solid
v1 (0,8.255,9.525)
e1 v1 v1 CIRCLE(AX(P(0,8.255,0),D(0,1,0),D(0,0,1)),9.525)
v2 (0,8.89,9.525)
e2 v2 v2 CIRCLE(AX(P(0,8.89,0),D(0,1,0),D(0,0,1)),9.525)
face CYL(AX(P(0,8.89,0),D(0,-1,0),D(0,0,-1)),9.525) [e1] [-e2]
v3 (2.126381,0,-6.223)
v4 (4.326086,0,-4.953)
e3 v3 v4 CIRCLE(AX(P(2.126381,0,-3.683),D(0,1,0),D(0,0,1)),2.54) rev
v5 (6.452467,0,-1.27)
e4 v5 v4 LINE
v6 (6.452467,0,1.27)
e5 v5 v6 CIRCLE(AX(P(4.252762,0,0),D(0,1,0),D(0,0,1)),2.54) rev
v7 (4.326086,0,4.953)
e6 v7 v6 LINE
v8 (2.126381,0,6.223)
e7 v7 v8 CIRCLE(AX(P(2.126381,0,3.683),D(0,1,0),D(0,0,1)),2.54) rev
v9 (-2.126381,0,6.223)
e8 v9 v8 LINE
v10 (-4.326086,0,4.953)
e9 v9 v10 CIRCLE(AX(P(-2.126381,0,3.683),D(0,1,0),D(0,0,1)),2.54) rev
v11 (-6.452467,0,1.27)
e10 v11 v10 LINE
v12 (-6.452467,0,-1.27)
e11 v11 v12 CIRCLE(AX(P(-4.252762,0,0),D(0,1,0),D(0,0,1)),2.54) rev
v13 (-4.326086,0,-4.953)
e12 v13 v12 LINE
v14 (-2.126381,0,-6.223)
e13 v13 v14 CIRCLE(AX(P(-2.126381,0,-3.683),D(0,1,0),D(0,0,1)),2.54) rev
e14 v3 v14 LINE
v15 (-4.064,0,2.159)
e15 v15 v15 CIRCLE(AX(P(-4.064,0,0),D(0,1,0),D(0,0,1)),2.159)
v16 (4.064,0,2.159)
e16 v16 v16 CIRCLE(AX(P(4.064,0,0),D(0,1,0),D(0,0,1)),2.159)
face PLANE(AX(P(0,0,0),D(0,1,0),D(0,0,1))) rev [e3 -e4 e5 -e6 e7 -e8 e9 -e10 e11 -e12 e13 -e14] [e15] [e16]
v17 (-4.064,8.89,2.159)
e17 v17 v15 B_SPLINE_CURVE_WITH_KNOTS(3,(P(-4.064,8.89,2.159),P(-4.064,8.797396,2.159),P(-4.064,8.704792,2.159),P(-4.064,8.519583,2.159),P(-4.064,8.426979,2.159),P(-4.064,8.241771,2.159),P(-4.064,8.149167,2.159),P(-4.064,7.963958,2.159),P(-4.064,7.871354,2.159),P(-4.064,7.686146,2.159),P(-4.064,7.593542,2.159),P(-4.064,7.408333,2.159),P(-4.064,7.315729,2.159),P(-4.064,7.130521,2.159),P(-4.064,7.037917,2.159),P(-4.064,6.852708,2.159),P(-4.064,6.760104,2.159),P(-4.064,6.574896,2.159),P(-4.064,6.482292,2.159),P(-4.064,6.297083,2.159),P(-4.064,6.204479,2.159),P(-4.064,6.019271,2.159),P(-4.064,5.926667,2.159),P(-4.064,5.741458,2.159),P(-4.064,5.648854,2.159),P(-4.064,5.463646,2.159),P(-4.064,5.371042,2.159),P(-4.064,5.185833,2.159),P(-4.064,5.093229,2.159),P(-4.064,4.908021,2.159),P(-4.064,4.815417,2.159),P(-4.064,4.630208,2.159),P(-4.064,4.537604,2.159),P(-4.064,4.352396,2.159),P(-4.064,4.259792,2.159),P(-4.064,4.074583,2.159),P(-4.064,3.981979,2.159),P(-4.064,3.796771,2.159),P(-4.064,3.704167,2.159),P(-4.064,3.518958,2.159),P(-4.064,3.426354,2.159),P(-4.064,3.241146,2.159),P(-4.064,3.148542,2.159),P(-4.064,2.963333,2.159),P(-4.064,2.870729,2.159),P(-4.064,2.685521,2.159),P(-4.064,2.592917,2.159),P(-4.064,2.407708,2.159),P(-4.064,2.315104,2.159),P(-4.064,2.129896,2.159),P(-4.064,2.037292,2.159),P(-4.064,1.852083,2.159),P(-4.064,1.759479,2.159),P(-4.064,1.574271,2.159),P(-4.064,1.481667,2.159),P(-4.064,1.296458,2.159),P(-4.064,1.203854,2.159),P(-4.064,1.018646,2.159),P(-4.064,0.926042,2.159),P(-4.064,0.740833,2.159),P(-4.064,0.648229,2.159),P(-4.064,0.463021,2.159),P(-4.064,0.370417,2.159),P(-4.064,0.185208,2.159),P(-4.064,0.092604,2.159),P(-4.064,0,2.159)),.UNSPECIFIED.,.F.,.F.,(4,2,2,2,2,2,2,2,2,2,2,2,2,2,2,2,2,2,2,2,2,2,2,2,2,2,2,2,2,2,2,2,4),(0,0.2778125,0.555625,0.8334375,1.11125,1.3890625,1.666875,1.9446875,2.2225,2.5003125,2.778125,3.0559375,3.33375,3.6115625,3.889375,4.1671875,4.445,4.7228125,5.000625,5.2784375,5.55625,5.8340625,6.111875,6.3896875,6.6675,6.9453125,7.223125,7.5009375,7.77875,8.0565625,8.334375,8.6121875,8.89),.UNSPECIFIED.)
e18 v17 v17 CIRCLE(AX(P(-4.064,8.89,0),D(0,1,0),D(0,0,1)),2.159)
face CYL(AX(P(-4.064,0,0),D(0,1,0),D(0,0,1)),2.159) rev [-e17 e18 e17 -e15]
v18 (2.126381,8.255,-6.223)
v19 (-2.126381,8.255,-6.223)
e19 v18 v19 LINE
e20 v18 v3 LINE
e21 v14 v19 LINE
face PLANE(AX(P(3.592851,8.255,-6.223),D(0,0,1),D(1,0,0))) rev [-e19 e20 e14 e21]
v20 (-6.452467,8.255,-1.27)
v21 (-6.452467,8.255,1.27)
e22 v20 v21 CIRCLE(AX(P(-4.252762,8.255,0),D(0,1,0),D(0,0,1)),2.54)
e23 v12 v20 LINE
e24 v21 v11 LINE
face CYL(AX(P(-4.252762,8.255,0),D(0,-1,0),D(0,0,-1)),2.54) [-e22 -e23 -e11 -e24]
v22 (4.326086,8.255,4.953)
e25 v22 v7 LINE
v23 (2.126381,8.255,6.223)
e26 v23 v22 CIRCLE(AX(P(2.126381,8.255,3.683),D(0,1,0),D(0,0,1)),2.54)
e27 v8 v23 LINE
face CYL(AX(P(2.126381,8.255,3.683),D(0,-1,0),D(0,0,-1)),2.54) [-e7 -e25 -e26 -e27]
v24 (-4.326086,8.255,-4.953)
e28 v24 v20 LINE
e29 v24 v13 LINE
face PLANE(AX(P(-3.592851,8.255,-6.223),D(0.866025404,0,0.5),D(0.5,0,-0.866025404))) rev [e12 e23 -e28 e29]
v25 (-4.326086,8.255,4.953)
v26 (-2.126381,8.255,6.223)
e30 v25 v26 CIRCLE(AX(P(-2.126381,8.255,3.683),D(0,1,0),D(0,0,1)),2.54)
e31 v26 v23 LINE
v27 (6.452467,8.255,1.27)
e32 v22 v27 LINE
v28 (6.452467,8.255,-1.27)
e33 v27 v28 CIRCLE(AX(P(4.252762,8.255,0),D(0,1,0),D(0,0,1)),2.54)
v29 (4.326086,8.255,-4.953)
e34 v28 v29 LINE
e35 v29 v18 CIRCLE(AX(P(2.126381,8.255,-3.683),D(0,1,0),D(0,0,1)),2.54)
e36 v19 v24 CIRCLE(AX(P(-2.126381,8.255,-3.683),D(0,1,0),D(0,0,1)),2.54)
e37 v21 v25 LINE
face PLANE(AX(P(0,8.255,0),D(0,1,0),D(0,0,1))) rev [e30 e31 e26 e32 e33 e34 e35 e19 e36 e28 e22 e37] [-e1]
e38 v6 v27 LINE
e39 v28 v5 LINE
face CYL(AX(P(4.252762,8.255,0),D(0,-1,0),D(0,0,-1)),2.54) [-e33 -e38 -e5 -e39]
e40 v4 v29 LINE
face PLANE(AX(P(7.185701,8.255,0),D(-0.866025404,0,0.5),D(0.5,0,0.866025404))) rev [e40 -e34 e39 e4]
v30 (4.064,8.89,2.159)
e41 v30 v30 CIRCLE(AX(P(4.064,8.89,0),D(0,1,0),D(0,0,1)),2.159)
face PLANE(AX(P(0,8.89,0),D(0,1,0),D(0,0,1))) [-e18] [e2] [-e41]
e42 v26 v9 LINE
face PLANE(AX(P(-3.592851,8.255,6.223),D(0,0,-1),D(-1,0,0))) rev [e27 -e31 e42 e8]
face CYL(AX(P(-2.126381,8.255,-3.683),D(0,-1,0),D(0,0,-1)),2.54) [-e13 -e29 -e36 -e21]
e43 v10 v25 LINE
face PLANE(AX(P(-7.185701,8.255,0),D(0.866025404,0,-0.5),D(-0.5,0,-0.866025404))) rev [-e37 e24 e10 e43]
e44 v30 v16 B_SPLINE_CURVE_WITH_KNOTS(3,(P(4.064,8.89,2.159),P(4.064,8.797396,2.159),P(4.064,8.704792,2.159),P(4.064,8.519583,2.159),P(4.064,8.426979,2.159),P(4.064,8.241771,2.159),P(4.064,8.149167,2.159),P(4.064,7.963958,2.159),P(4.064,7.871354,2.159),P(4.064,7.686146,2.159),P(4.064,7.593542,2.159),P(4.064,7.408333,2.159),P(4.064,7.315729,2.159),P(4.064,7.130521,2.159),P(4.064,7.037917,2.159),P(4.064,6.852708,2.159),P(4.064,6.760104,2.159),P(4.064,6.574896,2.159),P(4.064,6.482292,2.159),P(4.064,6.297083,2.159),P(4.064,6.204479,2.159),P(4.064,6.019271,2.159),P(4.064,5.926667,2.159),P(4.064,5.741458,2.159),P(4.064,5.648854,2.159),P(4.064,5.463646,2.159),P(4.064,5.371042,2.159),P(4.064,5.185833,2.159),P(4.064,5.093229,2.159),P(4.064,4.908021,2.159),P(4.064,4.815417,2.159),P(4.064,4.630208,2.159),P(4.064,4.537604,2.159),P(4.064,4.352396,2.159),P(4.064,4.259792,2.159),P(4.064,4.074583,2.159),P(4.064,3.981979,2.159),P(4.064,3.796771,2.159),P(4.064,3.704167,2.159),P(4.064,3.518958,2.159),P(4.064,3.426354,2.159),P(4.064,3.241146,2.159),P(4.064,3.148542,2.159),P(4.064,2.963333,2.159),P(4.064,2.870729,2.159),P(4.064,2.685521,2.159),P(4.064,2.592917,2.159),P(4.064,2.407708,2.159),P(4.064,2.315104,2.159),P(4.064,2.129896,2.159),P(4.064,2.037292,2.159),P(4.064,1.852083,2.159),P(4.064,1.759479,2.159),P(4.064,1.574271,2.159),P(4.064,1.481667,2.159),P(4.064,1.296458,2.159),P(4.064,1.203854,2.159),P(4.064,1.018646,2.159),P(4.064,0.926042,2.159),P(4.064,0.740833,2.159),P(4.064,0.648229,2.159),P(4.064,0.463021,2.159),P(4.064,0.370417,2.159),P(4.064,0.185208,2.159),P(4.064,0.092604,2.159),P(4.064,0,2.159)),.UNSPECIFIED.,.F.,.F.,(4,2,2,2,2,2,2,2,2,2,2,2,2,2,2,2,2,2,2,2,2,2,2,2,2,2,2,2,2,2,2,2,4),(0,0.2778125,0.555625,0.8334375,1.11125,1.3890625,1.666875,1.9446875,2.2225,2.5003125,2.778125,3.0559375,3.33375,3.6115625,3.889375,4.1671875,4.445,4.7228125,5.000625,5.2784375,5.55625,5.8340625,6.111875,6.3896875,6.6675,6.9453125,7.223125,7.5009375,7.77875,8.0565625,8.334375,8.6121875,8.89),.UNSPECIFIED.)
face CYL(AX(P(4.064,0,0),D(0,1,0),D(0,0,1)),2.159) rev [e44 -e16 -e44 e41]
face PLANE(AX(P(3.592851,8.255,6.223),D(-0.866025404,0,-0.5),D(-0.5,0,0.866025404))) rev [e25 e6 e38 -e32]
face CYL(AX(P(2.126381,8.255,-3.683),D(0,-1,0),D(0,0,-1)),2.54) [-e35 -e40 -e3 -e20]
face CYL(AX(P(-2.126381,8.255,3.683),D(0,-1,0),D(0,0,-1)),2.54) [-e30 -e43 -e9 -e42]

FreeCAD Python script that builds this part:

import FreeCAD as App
import Part
import Sketcher
from FreeCAD import Vector
Q = App.Units.Quantity


def edges_at(feature, points):
    """Names of the edges that pass closest to the given points."""
    edges = feature.Shape.Edges
    near = lambda p: min(range(len(edges)), key=lambda i: edges[i].distToShape(Part.Vertex(*p))[0])
    return sorted({f"Edge{near(p) + 1}" for p in points})

doc = App.newDocument("Part")
params = doc.addObject("Spreadsheet::Sheet", "Params")
for row, (alias, value) in enumerate([
    ("pad1_length", "0.325 in"),
    ("sketch2_diameter", "0.75 in"),
    ("pad2_length", "0.025 in"),
    ("sketch3_diameter", "0.17 in"),
    ("fillet_radius", "0.1 in"),
], start=1):
    params.set(f"A{row}", alias)
    params.set(f"B{row}", "=" + value)
    params.setAlias(f"B{row}", alias)

body = doc.addObject("PartDesign::Body", "Body")

# Sketch on XZ plane
sketch1 = doc.addObject("Sketcher::SketchObject", "Sketch")
body.addObject(sketch1)
sketch1.AttachmentSupport = (doc.XZ_Plane, [""])
sketch1.MapMode = "FlatFace"
sketch1.addGeometry(Part.LineSegment(Vector(7, 0, 0), Vector(4, -6, 0)), False)
sketch1.addGeometry(Part.LineSegment(Vector(4, -6, 0), Vector(-4, -6, 0)), False)
sketch1.addGeometry(Part.LineSegment(Vector(-4, -6, 0), Vector(-7, 0, 0)), False)
sketch1.addGeometry(Part.LineSegment(Vector(-7, 0, 0), Vector(-4, 6, 0)), False)
sketch1.addGeometry(Part.LineSegment(Vector(-4, 6, 0), Vector(4, 6, 0)), False)
sketch1.addGeometry(Part.LineSegment(Vector(4, 6, 0), Vector(7, 0, 0)), False)
sketch1.addConstraint(Sketcher.Constraint("Coincident", 0, 2, 1, 1))
sketch1.addConstraint(Sketcher.Constraint("Coincident", 1, 2, 2, 1))
sketch1.addConstraint(Sketcher.Constraint("Coincident", 2, 2, 3, 1))
sketch1.addConstraint(Sketcher.Constraint("Coincident", 3, 2, 4, 1))
sketch1.addConstraint(Sketcher.Constraint("Coincident", 4, 2, 5, 1))
sketch1.addConstraint(Sketcher.Constraint("Coincident", 5, 2, 0, 1))
sketch1.addConstraint(Sketcher.Constraint("Horizontal", 1))
sketch1.addConstraint(Sketcher.Constraint("Horizontal", 4))
sketch1.addConstraint(Sketcher.Constraint("Symmetric", 0, 2, 3, 2, -1, 1))
sketch1.addConstraint(Sketcher.Constraint("Symmetric", 2, 2, 5, 2, -1, 1))
sketch1.addConstraint(Sketcher.Constraint("PointOnObject", 2, 2, -1))
sketch1.addConstraint(Sketcher.Constraint("Parallel", 2, 5))
sketch1.addConstraint(Sketcher.Constraint("Vertical", 1, 2, 3, 2))
sketch1.addConstraint(Sketcher.Constraint("Angle", 0, Q("-120 deg")))
sketch1.addConstraint(Sketcher.Constraint("DistanceY", 1, 2, 3, 2, Q("0.49 in")))
sketch1.addConstraint(Sketcher.Constraint("DistanceX", 1, 2, 1, 1, 7.185701))
pad1 = doc.addObject("PartDesign::Pad", "Pad")
body.addObject(pad1)
pad1.Profile = sketch1
pad1.setExpression("Length", "Params.pad1_length")
pad1.Reversed = True

# Sketch on XZ plane
sketch2 = doc.addObject("Sketcher::SketchObject", "Sketch001")
body.addObject(sketch2)
sketch2.AttachmentSupport = (doc.XZ_Plane, [""])
sketch2.MapMode = "FlatFace"
sketch2.AttachmentOffset = App.Placement(Vector(0, 0, -0.325 * 25.4), App.Rotation())
sketch2.addGeometry(Part.Circle(Vector(0, 0, 0), Vector(0, 0, 1), 10), False)
sketch2.addConstraint(Sketcher.Constraint("Coincident", 0, 3, -1, 1))
sketch2.addConstraint(Sketcher.Constraint("Diameter", 0, Q("0.75 in")))
sketch2.setExpression("Constraints[1]", "Params.sketch2_diameter")
pad2 = doc.addObject("PartDesign::Pad", "Pad001")
body.addObject(pad2)
pad2.Profile = sketch2
pad2.setExpression("Length", "Params.pad2_length")
pad2.Reversed = True

# Sketch on XZ plane
sketch3 = doc.addObject("Sketcher::SketchObject", "Sketch002")
body.addObject(sketch3)
sketch3.AttachmentSupport = (doc.XZ_Plane, [""])
sketch3.MapMode = "FlatFace"
sketch3.AttachmentOffset = App.Placement(Vector(0, 0, -0.35 * 25.4), App.Rotation())
sketch3.addGeometry(Part.Circle(Vector(-4.1, 0, 0), Vector(0, 0, 1), 2.2), False)
sketch3.addGeometry(Part.Circle(Vector(4.1, 0, 0), Vector(0, 0, 1), 2.2), False)
sketch3.addConstraint(Sketcher.Constraint("Equal", 0, 1))
sketch3.addConstraint(Sketcher.Constraint("Symmetric", 0, 3, 1, 3, -1, 1))
sketch3.addConstraint(Sketcher.Constraint("PointOnObject", 0, 3, -1))
sketch3.addConstraint(Sketcher.Constraint("Diameter", 0, Q("0.17 in")))
sketch3.addConstraint(Sketcher.Constraint("DistanceX", 0, 3, -1, 1, Q("0.16 in")))
sketch3.setExpression("Constraints[3]", "Params.sketch3_diameter")
pocket1 = doc.addObject("PartDesign::Pocket", "Pocket")
body.addObject(pocket1)
pocket1.Profile = sketch3
pocket1.Type = "ThroughAll"
pocket1.Midplane = True
doc.recompute()

fillet = doc.addObject("PartDesign::Fillet", "Fillet")
body.addObject(fillet)
fillet.Base = (pocket1, edges_at(pocket1, [
    (3.593, 4.128, 6.223),
    (-3.593, 4.128, 6.223),
    (-7.186, 4.128, 0),
    (-3.593, 4.128, -6.223),
    (3.593, 4.128, -6.223),
    (7.186, 4.128, 0),
]))
fillet.setExpression("Radius", "Params.fillet_radius")

doc.recompute()
